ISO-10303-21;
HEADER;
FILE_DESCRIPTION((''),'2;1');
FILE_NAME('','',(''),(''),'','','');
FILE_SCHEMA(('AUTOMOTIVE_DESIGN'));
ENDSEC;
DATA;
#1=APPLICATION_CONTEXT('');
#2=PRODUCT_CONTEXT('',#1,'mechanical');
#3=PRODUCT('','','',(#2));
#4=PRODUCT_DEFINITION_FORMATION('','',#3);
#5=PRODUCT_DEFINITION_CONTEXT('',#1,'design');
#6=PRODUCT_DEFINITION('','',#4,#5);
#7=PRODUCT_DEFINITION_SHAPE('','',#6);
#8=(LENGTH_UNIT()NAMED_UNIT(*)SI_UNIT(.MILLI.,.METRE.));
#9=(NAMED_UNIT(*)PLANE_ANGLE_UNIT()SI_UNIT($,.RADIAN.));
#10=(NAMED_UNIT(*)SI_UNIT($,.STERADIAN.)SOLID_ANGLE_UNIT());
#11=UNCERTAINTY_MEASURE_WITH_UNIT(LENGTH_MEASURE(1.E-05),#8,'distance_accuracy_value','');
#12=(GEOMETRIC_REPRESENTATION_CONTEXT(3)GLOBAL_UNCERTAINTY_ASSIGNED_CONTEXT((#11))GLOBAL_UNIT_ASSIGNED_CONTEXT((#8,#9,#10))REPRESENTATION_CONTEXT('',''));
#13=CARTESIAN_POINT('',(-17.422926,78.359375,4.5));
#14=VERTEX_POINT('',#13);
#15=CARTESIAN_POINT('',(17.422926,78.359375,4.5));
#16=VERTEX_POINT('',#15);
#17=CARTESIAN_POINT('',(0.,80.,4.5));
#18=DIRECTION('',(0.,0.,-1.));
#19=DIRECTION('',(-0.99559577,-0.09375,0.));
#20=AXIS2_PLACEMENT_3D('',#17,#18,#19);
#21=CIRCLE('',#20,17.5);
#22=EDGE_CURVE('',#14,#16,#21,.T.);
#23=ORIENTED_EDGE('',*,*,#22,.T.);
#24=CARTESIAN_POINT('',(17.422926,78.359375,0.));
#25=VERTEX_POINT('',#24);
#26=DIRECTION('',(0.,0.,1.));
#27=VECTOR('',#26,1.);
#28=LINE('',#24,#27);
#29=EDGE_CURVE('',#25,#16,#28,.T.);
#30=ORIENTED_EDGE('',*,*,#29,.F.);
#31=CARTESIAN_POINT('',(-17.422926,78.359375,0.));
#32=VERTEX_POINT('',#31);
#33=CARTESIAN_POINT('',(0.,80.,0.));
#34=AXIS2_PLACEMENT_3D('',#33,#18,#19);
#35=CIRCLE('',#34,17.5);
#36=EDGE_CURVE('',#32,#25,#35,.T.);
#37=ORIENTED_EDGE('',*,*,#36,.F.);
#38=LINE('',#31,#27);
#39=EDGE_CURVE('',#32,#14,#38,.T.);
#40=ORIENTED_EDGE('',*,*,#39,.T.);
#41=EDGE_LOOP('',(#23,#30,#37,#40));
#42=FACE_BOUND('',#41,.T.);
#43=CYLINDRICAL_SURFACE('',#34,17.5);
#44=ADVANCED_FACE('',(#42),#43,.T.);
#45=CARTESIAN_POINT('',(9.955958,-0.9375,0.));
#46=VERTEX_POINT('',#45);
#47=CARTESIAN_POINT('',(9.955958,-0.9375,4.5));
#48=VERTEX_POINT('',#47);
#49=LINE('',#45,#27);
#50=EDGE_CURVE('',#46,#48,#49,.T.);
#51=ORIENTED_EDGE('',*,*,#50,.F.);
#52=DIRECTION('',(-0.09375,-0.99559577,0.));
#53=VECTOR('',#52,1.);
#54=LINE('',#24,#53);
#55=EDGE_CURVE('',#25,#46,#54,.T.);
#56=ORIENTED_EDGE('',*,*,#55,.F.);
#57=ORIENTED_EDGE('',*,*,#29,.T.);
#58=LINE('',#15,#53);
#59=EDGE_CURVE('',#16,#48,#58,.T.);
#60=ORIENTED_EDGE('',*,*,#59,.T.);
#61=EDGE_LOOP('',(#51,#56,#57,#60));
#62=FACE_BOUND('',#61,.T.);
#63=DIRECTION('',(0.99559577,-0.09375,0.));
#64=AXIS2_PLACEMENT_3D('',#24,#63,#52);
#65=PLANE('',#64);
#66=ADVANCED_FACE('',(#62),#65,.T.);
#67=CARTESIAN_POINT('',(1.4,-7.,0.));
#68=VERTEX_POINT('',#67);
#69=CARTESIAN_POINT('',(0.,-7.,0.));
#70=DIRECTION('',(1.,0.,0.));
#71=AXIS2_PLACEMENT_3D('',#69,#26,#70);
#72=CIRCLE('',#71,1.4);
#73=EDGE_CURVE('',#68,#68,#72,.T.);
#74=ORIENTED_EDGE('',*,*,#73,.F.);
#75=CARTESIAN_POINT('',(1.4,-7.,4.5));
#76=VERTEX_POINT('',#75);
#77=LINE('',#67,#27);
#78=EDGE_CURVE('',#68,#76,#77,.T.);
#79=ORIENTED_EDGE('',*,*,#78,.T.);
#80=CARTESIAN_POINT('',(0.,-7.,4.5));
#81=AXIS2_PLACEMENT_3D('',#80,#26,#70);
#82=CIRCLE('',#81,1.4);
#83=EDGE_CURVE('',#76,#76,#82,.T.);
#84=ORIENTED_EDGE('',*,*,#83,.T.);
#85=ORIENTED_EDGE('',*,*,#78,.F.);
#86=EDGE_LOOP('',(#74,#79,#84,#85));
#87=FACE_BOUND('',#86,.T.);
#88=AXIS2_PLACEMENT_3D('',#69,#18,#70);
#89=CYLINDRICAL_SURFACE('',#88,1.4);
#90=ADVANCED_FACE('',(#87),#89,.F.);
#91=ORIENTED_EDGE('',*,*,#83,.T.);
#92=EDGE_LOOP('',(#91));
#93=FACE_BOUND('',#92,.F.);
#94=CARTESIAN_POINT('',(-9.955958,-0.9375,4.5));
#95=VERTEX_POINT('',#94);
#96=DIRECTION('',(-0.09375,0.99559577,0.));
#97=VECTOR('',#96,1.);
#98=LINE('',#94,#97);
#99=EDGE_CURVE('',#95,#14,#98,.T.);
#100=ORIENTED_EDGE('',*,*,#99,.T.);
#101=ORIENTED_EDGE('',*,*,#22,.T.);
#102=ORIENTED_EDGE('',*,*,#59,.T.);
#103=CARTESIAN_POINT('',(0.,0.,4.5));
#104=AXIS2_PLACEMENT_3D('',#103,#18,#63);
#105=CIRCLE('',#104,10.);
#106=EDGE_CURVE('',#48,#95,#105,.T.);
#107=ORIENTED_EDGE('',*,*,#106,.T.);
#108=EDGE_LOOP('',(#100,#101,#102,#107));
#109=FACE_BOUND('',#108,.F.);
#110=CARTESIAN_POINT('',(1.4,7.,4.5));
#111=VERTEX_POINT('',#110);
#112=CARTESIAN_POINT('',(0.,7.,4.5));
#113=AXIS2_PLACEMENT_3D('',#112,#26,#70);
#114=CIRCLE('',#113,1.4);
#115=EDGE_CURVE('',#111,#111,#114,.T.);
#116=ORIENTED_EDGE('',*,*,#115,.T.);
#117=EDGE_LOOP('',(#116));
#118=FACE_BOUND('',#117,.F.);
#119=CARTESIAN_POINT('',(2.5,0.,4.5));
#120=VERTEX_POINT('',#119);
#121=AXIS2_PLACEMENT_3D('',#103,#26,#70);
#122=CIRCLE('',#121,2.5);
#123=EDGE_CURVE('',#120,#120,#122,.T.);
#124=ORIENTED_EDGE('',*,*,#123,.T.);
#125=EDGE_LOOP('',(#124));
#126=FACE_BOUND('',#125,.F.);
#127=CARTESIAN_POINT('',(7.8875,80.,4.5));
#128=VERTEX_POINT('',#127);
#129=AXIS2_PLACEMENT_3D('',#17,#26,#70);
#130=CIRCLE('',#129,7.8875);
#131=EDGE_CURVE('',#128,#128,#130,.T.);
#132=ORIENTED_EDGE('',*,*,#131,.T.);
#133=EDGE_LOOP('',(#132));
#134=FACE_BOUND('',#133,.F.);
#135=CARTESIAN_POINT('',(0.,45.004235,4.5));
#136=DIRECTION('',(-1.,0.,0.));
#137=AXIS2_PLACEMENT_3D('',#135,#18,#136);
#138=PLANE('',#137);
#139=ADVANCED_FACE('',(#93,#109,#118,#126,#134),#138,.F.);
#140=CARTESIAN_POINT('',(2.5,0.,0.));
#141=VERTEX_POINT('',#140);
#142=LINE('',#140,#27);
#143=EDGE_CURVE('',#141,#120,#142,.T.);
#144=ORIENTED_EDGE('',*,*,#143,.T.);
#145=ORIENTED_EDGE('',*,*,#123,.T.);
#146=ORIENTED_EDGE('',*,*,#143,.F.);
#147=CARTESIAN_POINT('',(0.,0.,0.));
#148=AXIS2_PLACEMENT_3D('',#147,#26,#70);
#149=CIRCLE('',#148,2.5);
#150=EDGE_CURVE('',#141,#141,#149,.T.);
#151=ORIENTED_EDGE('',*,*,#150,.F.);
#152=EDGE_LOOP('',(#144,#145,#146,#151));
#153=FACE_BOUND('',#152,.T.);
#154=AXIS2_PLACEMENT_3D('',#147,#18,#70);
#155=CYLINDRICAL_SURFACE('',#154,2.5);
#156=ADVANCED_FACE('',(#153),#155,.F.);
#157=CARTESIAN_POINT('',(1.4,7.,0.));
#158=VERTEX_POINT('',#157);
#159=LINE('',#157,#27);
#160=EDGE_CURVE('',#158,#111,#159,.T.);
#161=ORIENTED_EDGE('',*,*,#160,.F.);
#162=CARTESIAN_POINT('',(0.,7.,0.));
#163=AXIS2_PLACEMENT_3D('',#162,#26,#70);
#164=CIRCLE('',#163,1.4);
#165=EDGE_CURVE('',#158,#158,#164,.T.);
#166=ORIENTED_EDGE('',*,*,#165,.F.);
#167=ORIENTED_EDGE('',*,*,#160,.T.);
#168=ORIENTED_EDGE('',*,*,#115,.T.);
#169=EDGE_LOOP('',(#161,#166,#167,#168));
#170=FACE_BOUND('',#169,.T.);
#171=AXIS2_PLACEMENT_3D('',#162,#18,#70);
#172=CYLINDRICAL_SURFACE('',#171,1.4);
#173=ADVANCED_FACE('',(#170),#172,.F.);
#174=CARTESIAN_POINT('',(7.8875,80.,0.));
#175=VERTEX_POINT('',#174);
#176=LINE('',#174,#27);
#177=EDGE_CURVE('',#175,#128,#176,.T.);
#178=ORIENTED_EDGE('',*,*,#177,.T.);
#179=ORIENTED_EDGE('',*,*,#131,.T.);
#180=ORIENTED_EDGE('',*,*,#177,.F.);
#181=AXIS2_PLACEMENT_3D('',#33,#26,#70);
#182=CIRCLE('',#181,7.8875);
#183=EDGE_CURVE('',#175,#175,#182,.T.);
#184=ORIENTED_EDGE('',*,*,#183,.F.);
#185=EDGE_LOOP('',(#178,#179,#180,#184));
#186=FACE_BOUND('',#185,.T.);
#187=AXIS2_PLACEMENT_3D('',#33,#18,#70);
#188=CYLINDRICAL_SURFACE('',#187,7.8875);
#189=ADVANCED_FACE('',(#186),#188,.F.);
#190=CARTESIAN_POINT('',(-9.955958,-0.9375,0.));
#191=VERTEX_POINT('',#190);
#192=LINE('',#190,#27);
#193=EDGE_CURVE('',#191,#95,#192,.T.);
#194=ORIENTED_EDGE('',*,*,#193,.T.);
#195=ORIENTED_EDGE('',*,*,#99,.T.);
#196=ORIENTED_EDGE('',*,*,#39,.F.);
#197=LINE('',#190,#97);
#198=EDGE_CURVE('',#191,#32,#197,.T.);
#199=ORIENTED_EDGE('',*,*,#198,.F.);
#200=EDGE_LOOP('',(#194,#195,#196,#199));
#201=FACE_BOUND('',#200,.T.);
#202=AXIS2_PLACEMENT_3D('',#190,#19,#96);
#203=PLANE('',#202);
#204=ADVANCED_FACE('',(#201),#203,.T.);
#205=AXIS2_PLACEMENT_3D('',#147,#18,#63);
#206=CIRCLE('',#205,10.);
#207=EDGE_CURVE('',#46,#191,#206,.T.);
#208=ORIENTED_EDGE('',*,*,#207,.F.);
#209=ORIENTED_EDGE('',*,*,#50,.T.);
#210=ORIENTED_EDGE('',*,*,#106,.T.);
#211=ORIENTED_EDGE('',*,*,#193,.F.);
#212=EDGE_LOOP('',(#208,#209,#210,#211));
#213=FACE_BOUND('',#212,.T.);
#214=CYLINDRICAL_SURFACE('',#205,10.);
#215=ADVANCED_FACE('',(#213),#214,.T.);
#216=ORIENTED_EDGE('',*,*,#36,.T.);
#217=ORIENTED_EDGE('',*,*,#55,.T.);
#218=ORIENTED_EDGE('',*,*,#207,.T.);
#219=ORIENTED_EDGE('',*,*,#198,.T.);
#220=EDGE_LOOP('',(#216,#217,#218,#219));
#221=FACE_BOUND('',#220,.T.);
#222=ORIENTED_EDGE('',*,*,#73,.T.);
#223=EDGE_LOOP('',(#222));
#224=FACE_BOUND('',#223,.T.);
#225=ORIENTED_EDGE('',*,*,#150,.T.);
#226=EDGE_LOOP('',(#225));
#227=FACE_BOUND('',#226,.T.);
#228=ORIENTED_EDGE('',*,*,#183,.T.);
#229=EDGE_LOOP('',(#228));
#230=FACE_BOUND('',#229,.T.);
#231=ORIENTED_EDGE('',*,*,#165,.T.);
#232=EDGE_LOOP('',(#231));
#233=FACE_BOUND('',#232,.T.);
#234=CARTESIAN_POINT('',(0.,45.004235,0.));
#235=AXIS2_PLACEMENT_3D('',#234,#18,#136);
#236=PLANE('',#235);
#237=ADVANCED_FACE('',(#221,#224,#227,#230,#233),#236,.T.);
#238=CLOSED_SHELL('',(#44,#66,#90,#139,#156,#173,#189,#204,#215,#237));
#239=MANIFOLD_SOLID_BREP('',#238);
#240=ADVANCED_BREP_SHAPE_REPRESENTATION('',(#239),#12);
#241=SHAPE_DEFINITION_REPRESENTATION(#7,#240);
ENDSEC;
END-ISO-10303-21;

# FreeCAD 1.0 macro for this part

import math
import FreeCAD as App
import Part
import Sketcher
from FreeCAD import Vector
Q = App.Units.Quantity

doc = App.newDocument("Part")
body = doc.addObject("PartDesign::Body", "Body")

# Sketch on XY plane
sketch1 = doc.addObject("Sketcher::SketchObject", "Sketch")
body.addObject(sketch1)
sketch1.AttachmentSupport = (doc.XY_Plane, [""])
sketch1.MapMode = "FlatFace"
sketch1.addGeometry(Part.LineSegment(Vector(-17.4, 78.4, 0), Vector(-10, -0.9, 0)), False)
sketch1.addGeometry(Part.ArcOfCircle(Part.Circle(Vector(0, 0, 0), Vector(0, 0, 1), 10), math.radians(-175), math.radians(-5)), False)
sketch1.addGeometry(Part.LineSegment(Vector(10, -0.9, 0), Vector(17.4, 78.4, 0)), False)
sketch1.addGeometry(Part.ArcOfCircle(Part.Circle(Vector(0, 80, 0), Vector(0, 0, 1), 17.5), math.radians(-5), math.radians(185)), False)
sketch1.addGeometry(Part.Circle(Vector(0, -7, 0), Vector(0, 0, 1), 1.4), False)
sketch1.addGeometry(Part.Circle(Vector(0, 0, 0), Vector(0, 0, 1), 2.5), False)
sketch1.addGeometry(Part.Circle(Vector(0, 7, 0), Vector(0, 0, 1), 1.4), False)
sketch1.addGeometry(Part.Circle(Vector(0, 80, 0), Vector(0, 0, 1), 7.9), False)
sketch1.addConstraint(Sketcher.Constraint("Tangent", 0, 2, 1, 1))
sketch1.addConstraint(Sketcher.Constraint("Tangent", 1, 2, 2, 1))
sketch1.addConstraint(Sketcher.Constraint("Tangent", 2, 2, 3, 1))
sketch1.addConstraint(Sketcher.Constraint("Tangent", 3, 2, 0, 1))
sketch1.addConstraint(Sketcher.Constraint("Coincident", 1, 3, -1, 1))
sketch1.addConstraint(Sketcher.Constraint("Coincident", 5, 3, -1, 1))
sketch1.addConstraint(Sketcher.Constraint("Coincident", 7, 3, 3, 3))
sketch1.addConstraint(Sketcher.Constraint("Equal", 4, 6))
sketch1.addConstraint(Sketcher.Constraint("Symmetric", 4, 3, 6, 3, -1, 1))
sketch1.addConstraint(Sketcher.Constraint("PointOnObject", 3, 3, -2))
sketch1.addConstraint(Sketcher.Constraint("PointOnObject", 4, 3, -2))
sketch1.addConstraint(Sketcher.Constraint("Diameter", 5, Q("5 mm")))
sketch1.addConstraint(Sketcher.Constraint("Radius", 1, Q("10 mm")))
sketch1.addConstraint(Sketcher.Constraint("Diameter", 4, Q("2.8 mm")))
sketch1.addConstraint(Sketcher.Constraint("Radius", 3, Q("17.5 mm")))
sketch1.addConstraint(Sketcher.Constraint("Diameter", 7, Q("15.775 mm")))
sketch1.addConstraint(Sketcher.Constraint("DistanceY", -1, 1, 3, 3, Q("80 mm")))
sketch1.addConstraint(Sketcher.Constraint("DistanceY", 4, 3, -1, 1, Q("7 mm")))
pad1 = doc.addObject("PartDesign::Pad", "Pad")
body.addObject(pad1)
pad1.Profile = sketch1
pad1.Length = 4.5

doc.recompute()
